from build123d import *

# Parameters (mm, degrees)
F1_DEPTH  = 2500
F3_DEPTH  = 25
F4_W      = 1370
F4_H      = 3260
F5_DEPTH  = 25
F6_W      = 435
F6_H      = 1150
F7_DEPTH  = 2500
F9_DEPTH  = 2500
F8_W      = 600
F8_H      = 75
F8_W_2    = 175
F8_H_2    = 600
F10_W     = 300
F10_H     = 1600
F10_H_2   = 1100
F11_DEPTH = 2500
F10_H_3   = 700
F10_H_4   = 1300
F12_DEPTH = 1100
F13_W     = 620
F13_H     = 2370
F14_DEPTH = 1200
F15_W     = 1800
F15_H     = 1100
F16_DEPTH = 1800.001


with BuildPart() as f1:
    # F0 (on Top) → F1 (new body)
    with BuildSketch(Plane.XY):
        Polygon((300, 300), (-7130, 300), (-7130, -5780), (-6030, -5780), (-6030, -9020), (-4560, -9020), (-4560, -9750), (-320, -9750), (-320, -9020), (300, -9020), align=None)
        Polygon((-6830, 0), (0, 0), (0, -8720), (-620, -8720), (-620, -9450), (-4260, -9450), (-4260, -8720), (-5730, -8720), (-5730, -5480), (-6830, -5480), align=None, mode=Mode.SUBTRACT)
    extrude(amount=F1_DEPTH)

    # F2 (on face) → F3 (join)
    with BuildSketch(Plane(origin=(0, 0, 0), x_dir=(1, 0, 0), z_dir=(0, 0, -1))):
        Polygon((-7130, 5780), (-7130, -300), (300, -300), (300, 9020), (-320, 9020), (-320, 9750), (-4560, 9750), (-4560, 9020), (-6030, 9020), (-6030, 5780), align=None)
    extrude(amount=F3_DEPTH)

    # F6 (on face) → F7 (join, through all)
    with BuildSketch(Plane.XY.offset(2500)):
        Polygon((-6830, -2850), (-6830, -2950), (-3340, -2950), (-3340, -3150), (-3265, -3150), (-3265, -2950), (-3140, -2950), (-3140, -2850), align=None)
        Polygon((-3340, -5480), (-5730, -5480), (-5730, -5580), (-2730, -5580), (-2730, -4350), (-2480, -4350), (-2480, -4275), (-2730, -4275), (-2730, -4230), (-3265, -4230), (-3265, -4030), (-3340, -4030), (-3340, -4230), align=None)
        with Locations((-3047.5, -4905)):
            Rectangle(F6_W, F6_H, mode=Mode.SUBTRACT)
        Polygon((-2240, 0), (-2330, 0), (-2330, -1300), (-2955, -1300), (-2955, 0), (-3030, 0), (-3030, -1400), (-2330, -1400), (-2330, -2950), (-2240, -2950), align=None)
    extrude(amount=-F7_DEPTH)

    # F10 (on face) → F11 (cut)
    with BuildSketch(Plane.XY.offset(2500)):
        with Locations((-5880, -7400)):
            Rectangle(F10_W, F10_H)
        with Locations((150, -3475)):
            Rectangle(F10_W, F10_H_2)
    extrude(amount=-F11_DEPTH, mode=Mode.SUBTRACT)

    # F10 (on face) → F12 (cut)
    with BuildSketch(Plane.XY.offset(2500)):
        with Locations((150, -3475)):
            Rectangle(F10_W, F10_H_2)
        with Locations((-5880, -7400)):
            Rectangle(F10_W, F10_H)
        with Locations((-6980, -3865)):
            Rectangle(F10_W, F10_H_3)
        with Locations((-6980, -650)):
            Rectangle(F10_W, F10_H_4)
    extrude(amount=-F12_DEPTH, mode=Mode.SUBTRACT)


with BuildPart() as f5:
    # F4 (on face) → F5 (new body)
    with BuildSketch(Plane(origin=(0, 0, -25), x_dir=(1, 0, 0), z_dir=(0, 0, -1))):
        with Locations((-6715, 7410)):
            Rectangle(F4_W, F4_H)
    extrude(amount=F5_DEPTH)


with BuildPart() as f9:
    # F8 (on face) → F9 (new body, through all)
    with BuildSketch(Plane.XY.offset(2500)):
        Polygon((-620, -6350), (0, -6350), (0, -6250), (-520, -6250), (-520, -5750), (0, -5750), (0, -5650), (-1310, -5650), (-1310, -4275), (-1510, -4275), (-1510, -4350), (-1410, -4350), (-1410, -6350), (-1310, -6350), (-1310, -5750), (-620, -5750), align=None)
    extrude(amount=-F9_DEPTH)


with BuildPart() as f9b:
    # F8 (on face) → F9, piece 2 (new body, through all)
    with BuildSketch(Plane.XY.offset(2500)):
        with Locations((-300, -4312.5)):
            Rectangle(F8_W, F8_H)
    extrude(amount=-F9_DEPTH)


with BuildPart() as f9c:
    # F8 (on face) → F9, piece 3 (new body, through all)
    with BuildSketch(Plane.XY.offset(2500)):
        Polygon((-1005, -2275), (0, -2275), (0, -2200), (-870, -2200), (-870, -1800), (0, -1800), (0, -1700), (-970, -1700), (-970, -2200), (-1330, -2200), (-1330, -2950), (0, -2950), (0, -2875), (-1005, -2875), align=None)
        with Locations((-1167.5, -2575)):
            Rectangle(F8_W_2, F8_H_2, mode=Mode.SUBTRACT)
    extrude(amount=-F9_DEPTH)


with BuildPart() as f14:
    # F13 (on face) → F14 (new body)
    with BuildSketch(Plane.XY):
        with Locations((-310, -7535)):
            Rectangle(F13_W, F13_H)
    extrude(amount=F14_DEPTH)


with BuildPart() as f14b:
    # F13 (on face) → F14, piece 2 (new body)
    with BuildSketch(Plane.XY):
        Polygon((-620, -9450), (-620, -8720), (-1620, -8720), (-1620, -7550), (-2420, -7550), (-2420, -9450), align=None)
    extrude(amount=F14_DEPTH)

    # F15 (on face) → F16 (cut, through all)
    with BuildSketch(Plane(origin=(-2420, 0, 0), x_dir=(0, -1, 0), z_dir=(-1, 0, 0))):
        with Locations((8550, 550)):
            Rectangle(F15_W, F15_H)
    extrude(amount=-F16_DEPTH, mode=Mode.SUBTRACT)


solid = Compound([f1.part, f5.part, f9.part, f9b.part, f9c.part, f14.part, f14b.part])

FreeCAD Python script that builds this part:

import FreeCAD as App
import Part
import Sketcher
from FreeCAD import Vector


def add_polygon(sketch, points):
    """Adds a closed chain of lines whose ends are joined by coincident constraints."""
    first, n = sketch.GeometryCount, len(points)
    for a, b in zip(points, points[1:] + points[:1]):
        sketch.addGeometry(Part.LineSegment(App.Vector(*a, 0), App.Vector(*b, 0)), False)
    for i in range(n):
        sketch.addConstraint(Sketcher.Constraint("Coincident", first + i, 2, first + (i + 1) % n, 1))

doc = App.newDocument("Part")
body = doc.addObject("PartDesign::Body", "Body")

# Sketch on XY plane
sketch1 = body.newObject("Sketcher::SketchObject", "Sketch")
sketch1.AttachmentSupport = (doc.getObject("XY_Plane"), [""])
sketch1.MapMode = "FlatFace"
add_polygon(sketch1, [(300, 300), (-7130, 300), (-7130, -5780), (-6030, -5780), (-6030, -9020), (-4560, -9020), (-4560, -9750), (-320, -9750), (-320, -9020), (300, -9020)])  # lines 0-9
add_polygon(sketch1, [(-6830, -5480), (-6830, 0), (0, 0), (0, -8720), (-620, -8720), (-620, -9450), (-4260, -9450), (-4260, -8720), (-5730, -8720), (-5730, -5480)])  # lines 10-19
sketch1.addConstraint([
    Sketcher.Constraint("Horizontal", 0),
    Sketcher.Constraint("Vertical", 1),
    Sketcher.Constraint("Horizontal", 2),
    Sketcher.Constraint("Vertical", 3),
    Sketcher.Constraint("Horizontal", 4),
    Sketcher.Constraint("Vertical", 5),
    Sketcher.Constraint("Horizontal", 6),
    Sketcher.Constraint("Vertical", 7),
    Sketcher.Constraint("Horizontal", 8),
    Sketcher.Constraint("Vertical", 9),
    Sketcher.Constraint("Vertical", 10),
    Sketcher.Constraint("Horizontal", 11),
    Sketcher.Constraint("Vertical", 12),
    Sketcher.Constraint("Horizontal", 13),
    Sketcher.Constraint("Vertical", 14),
    Sketcher.Constraint("Horizontal", 15),
    Sketcher.Constraint("Vertical", 16),
    Sketcher.Constraint("Horizontal", 17),
    Sketcher.Constraint("Vertical", 18),
    Sketcher.Constraint("Horizontal", 19),
    Sketcher.Constraint("Coincident", 11, 2, -1, 1),
    Sketcher.Constraint("Horizontal", 4, 2, 7, 2),
    Sketcher.Constraint("Horizontal", 13, 2, 16, 2),
    Sketcher.Constraint("Equal", 8, 13),
    Sketcher.Constraint("Equal", 4, 17),
    Sketcher.Constraint("Equal", 2, 19),
    Sketcher.Constraint("Equal", 7, 14),
    Sketcher.Constraint("Equal", 3, 18),
    Sketcher.Constraint("DistanceX", 0, 2, 0, 1, 7430.0),
    Sketcher.Constraint("DistanceX", 2, 1, 2, 2, 1100.0),
    Sketcher.Constraint("DistanceX", 4, 1, 4, 2, 1470.0),
    Sketcher.Constraint("DistanceX", 6, 1, 6, 2, 4240.0),
    Sketcher.Constraint("DistanceX", 11, 1, 11, 2, 6830.0),
    Sketcher.Constraint("DistanceY", 1, 2, 1, 1, 6080.0),
    Sketcher.Constraint("DistanceY", 3, 2, 3, 1, 3240.0),
    Sketcher.Constraint("DistanceY", 5, 2, 5, 1, 730.0),
    Sketcher.Constraint("DistanceY", 10, 1, 10, 2, 5480.0),
    Sketcher.Constraint("DistanceX", 0, 2, -1, 1, 7130.0),
    Sketcher.Constraint("DistanceY", -1, 1, 0, 2, 300.0),
])
pad1 = body.newObject("PartDesign::Pad", "Pad")
pad1.Profile = sketch1
pad1.Length = 2500

# Sketch on XY plane
sketch2 = body.newObject("Sketcher::SketchObject", "Sketch001")
sketch2.AttachmentSupport = (doc.getObject("XY_Plane"), [""])
sketch2.MapMode = "FlatFace"
add_polygon(sketch2, [(-7130, -5780), (-7130, 300), (300, 300), (300, -9020), (-320, -9020), (-320, -9750), (-4560, -9750), (-4560, -9020), (-6030, -9020), (-6030, -5780)])  # lines 0-9
sketch2.addConstraint([
    Sketcher.Constraint("Vertical", 0),
    Sketcher.Constraint("Horizontal", 1),
    Sketcher.Constraint("Vertical", 2),
    Sketcher.Constraint("Horizontal", 3),
    Sketcher.Constraint("Vertical", 4),
    Sketcher.Constraint("Horizontal", 5),
    Sketcher.Constraint("Vertical", 6),
    Sketcher.Constraint("Horizontal", 7),
    Sketcher.Constraint("Vertical", 8),
    Sketcher.Constraint("Horizontal", 9),
    Sketcher.Constraint("Horizontal", 3, 2, 6, 2),
    Sketcher.Constraint("DistanceX", 1, 1, 1, 2, 7430.0),
    Sketcher.Constraint("DistanceX", 3, 2, 3, 1, 620.0),
    Sketcher.Constraint("DistanceX", 5, 2, 5, 1, 4240.0),
    Sketcher.Constraint("DistanceX", 7, 2, 7, 1, 1470.0),
    Sketcher.Constraint("DistanceY", 0, 1, 0, 2, 6080.0),
    Sketcher.Constraint("DistanceY", 2, 2, 2, 1, 9320.0),
    Sketcher.Constraint("DistanceY", 4, 2, 4, 1, 730.0),
    Sketcher.Constraint("DistanceX", 0, 2, -1, 1, 7130.0),
    Sketcher.Constraint("DistanceY", -1, 1, 0, 2, 300.0),
])
pad2 = body.newObject("PartDesign::Pad", "Pad001")
pad2.Profile = sketch2
pad2.Length = 25
pad2.Reversed = True

# Sketch on XY plane
sketch3 = body.newObject("Sketcher::SketchObject", "Sketch002")
sketch3.AttachmentSupport = (doc.getObject("XY_Plane"), [""])
sketch3.MapMode = "FlatFace"
sketch3.AttachmentOffset = App.Placement(Vector(0, 0, 2500), App.Rotation())
add_polygon(sketch3, [(-6830, -2850), (-6830, -2950), (-3340, -2950), (-3340, -3150), (-3265, -3150), (-3265, -2950), (-3140, -2950), (-3140, -2850)])  # lines 0-7
add_polygon(sketch3, [(-3340, -5480), (-5730, -5480), (-5730, -5580), (-2730, -5580), (-2730, -4350), (-2480, -4350), (-2480, -4275), (-2730, -4275), (-2730, -4230), (-3265, -4230), (-3265, -4030), (-3340, -4030)])  # lines 8-19
add_polygon(sketch3, [(-2830, -5480), (-3265, -5480), (-3265, -4330), (-2830, -4330)])  # lines 20-23
add_polygon(sketch3, [(-2240, 0), (-2330, 0), (-2330, -1300), (-2955, -1300), (-2955, 0), (-3030, 0), (-3030, -1400), (-2330, -1400), (-2330, -2950), (-2240, -2950)])  # lines 24-33
sketch3.addConstraint([
    Sketcher.Constraint("Vertical", 0),
    Sketcher.Constraint("Horizontal", 1),
    Sketcher.Constraint("Vertical", 2),
    Sketcher.Constraint("Horizontal", 3),
    Sketcher.Constraint("Vertical", 4),
    Sketcher.Constraint("Horizontal", 5),
    Sketcher.Constraint("Vertical", 6),
    Sketcher.Constraint("Horizontal", 7),
    Sketcher.Constraint("Horizontal", 8),
    Sketcher.Constraint("Vertical", 9),
    Sketcher.Constraint("Horizontal", 10),
    Sketcher.Constraint("Vertical", 11),
    Sketcher.Constraint("Horizontal", 12),
    Sketcher.Constraint("Vertical", 13),
    Sketcher.Constraint("Horizontal", 14),
    Sketcher.Constraint("Vertical", 15),
    Sketcher.Constraint("Horizontal", 16),
    Sketcher.Constraint("Vertical", 17),
    Sketcher.Constraint("Horizontal", 18),
    Sketcher.Constraint("Vertical", 19),
    Sketcher.Constraint("Horizontal", 20),
    Sketcher.Constraint("Vertical", 21),
    Sketcher.Constraint("Horizontal", 22),
    Sketcher.Constraint("Vertical", 23),
    Sketcher.Constraint("Horizontal", 24),
    Sketcher.Constraint("Vertical", 25),
    Sketcher.Constraint("Horizontal", 26),
    Sketcher.Constraint("Vertical", 27),
    Sketcher.Constraint("Horizontal", 28),
    Sketcher.Constraint("Vertical", 29),
    Sketcher.Constraint("Horizontal", 30),
    Sketcher.Constraint("Vertical", 31),
    Sketcher.Constraint("Horizontal", 32),
    Sketcher.Constraint("Vertical", 33),
    Sketcher.Constraint("PointOnObject", 24, 2, -1),
    Sketcher.Constraint("PointOnObject", 27, 2, -1),
    Sketcher.Constraint("Horizontal", 1, 2, 4, 2),
    Sketcher.Constraint("Horizontal", 19, 2, 20, 2),
    Sketcher.Constraint("Horizontal", 5, 2, 31, 2),
    Sketcher.Constraint("Vertical", 11, 2, 14, 2),
    Sketcher.Constraint("Vertical", 4, 2, 16, 2),
    Sketcher.Constraint("Vertical", 2, 2, 18, 2),
    Sketcher.Constraint("Vertical", 17, 2, 20, 2),
    Sketcher.Constraint("Vertical", 25, 2, 30, 2),
    Sketcher.Constraint("Equal", 18, 28),
    Sketcher.Constraint("Equal", 6, 9),
    Sketcher.Constraint("Equal", 28, 13),
    Sketcher.Constraint("Equal", 4, 17),
    Sketcher.Constraint("DistanceX", 1, 1, 1, 2, 3490.0),
    Sketcher.Constraint("DistanceX", 3, 1, 3, 2, 75.0),
    Sketcher.Constraint("DistanceX", 5, 1, 5, 2, 125.0),
    Sketcher.Constraint("DistanceX", 8, 2, 8, 1, 2390.0),
    Sketcher.Constraint("DistanceX", 10, 1, 10, 2, 3000.0),
    Sketcher.Constraint("DistanceX", 12, 1, 12, 2, 250.0),
    Sketcher.Constraint("DistanceX", 20, 2, 20, 1, 435.0),
    Sketcher.Constraint("DistanceX", 24, 2, 24, 1, 90.0),
    Sketcher.Constraint("DistanceX", 26, 2, 26, 1, 625.0),
    Sketcher.Constraint("DistanceY", 0, 2, 0, 1, 100.0),
    Sketcher.Constraint("DistanceY", 2, 2, 2, 1, 200.0),
    Sketcher.Constraint("DistanceY", 11, 1, 11, 2, 1230.0),
    Sketcher.Constraint("DistanceY", 15, 1, 15, 2, 45.0),
    Sketcher.Constraint("DistanceY", 21, 1, 21, 2, 1150.0),
    Sketcher.Constraint("DistanceY", 25, 2, 25, 1, 1300.0),
    Sketcher.Constraint("DistanceY", 29, 2, 29, 1, 1400.0),
    Sketcher.Constraint("DistanceY", 31, 2, 31, 1, 1550.0),
    Sketcher.Constraint("DistanceX", 0, 2, -1, 1, 6830.0),
    Sketcher.Constraint("DistanceY", 8, 2, -1, 1, 5480.0),
    Sketcher.Constraint("DistanceX", 24, 2, -1, 1, 2330.0),
])
pad3 = body.newObject("PartDesign::Pad", "Pad002")
pad3.Profile = sketch3
pad3.Type = "UpToLast"
pad3.Reversed = True

# Sketch on XY plane
sketch4 = body.newObject("Sketcher::SketchObject", "Sketch003")
sketch4.AttachmentSupport = (doc.getObject("XY_Plane"), [""])
sketch4.MapMode = "FlatFace"
sketch4.AttachmentOffset = App.Placement(Vector(0, 0, 2500), App.Rotation())
add_polygon(sketch4, [(-6030, -6600), (-6030, -8200), (-5730, -8200), (-5730, -6600)])  # lines 0-3
add_polygon(sketch4, [(0, -2925), (0, -4025), (300, -4025), (300, -2925)])  # lines 4-7
sketch4.addConstraint([
    Sketcher.Constraint("Vertical", 0),
    Sketcher.Constraint("Horizontal", 1),
    Sketcher.Constraint("Vertical", 2),
    Sketcher.Constraint("Horizontal", 3),
    Sketcher.Constraint("Vertical", 4),
    Sketcher.Constraint("Horizontal", 5),
    Sketcher.Constraint("Vertical", 6),
    Sketcher.Constraint("Horizontal", 7),
    Sketcher.Constraint("PointOnObject", 4, 2, -2),
    Sketcher.Constraint("Equal", 3, 5),
    Sketcher.Constraint("DistanceX", 1, 1, 1, 2, 300.0),
    Sketcher.Constraint("DistanceY", 0, 2, 0, 1, 1600.0),
    Sketcher.Constraint("DistanceY", 4, 2, 4, 1, 1100.0),
    Sketcher.Constraint("DistanceX", 0, 2, -1, 1, 6030.0),
    Sketcher.Constraint("DistanceY", 0, 2, -1, 1, 8200.0),
    Sketcher.Constraint("DistanceY", 4, 2, -1, 1, 4025.0),
])
pocket1 = body.newObject("PartDesign::Pocket", "Pocket")
pocket1.Profile = sketch4
pocket1.Length = 2500

# Sketch on XY plane
sketch5 = body.newObject("Sketcher::SketchObject", "Sketch004")
sketch5.AttachmentSupport = (doc.getObject("XY_Plane"), [""])
sketch5.MapMode = "FlatFace"
sketch5.AttachmentOffset = App.Placement(Vector(0, 0, 2500), App.Rotation())
add_polygon(sketch5, [(0, -2925), (0, -4025), (300, -4025), (300, -2925)])  # lines 0-3
add_polygon(sketch5, [(-6030, -6600), (-6030, -8200), (-5730, -8200), (-5730, -6600)])  # lines 4-7
add_polygon(sketch5, [(-7130, -3515), (-7130, -4215), (-6830, -4215), (-6830, -3515)])  # lines 8-11
add_polygon(sketch5, [(-7130, 0), (-7130, -1300), (-6830, -1300), (-6830, 0)])  # lines 12-15
sketch5.addConstraint([
    Sketcher.Constraint("Vertical", 0),
    Sketcher.Constraint("Horizontal", 1),
    Sketcher.Constraint("Vertical", 2),
    Sketcher.Constraint("Horizontal", 3),
    Sketcher.Constraint("Vertical", 4),
    Sketcher.Constraint("Horizontal", 5),
    Sketcher.Constraint("Vertical", 6),
    Sketcher.Constraint("Horizontal", 7),
    Sketcher.Constraint("Vertical", 8),
    Sketcher.Constraint("Horizontal", 9),
    Sketcher.Constraint("Vertical", 10),
    Sketcher.Constraint("Horizontal", 11),
    Sketcher.Constraint("Vertical", 12),
    Sketcher.Constraint("Horizontal", 13),
    Sketcher.Constraint("Vertical", 14),
    Sketcher.Constraint("Horizontal", 15),
    Sketcher.Constraint("PointOnObject", 0, 2, -2),
    Sketcher.Constraint("PointOnObject", 14, 2, -1),
    Sketcher.Constraint("Vertical", 11, 2, 12, 2),
    Sketcher.Constraint("Vertical", 10, 2, 13, 2),
    Sketcher.Constraint("Equal", 3, 5),
    Sketcher.Constraint("Equal", 7, 9),
    Sketcher.Constraint("DistanceX", 1, 1, 1, 2, 300.0),
    Sketcher.Constraint("DistanceY", 0, 2, 0, 1, 1100.0),
    Sketcher.Constraint("DistanceY", 4, 2, 4, 1, 1600.0),
    Sketcher.Constraint("DistanceY", 8, 2, 8, 1, 700.0),
    Sketcher.Constraint("DistanceY", 12, 2, 12, 1, 1300.0),
    Sketcher.Constraint("DistanceY", 0, 2, -1, 1, 4025.0),
    Sketcher.Constraint("DistanceX", 4, 2, -1, 1, 6030.0),
    Sketcher.Constraint("DistanceY", 4, 2, -1, 1, 8200.0),
    Sketcher.Constraint("DistanceX", 8, 2, -1, 1, 7130.0),
    Sketcher.Constraint("DistanceY", 8, 2, -1, 1, 4215.0),
])
pocket2 = body.newObject("PartDesign::Pocket", "Pocket001")
pocket2.Profile = sketch5
pocket2.Length = 1100
body2 = doc.addObject("PartDesign::Body", "Body001")

# Sketch on XY plane
sketch6 = body2.newObject("Sketcher::SketchObject", "Sketch005")
sketch6.AttachmentSupport = (doc.getObject("XY_Plane001"), [""])
sketch6.MapMode = "FlatFace"
sketch6.AttachmentOffset = App.Placement(Vector(0, 0, -25), App.Rotation())
add_polygon(sketch6, [(-7400, -9040), (-7400, -5780), (-6030, -5780), (-6030, -9040)])  # lines 0-3
sketch6.addConstraint([
    Sketcher.Constraint("Vertical", 0),
    Sketcher.Constraint("Horizontal", 1),
    Sketcher.Constraint("Vertical", 2),
    Sketcher.Constraint("Horizontal", 3),
    Sketcher.Constraint("DistanceX", 1, 1, 1, 2, 1370.0),
    Sketcher.Constraint("DistanceY", 0, 1, 0, 2, 3260.0),
    Sketcher.Constraint("DistanceX", 0, 2, -1, 1, 7400.0),
    Sketcher.Constraint("DistanceY", 0, 2, -1, 1, 5780.0),
])
pad4 = body2.newObject("PartDesign::Pad", "Pad003")
pad4.Profile = sketch6
pad4.Length = 25
pad4.Reversed = True
body3 = doc.addObject("PartDesign::Body", "Body002")

# Sketch on XY plane
sketch7 = body3.newObject("Sketcher::SketchObject", "Sketch006")
sketch7.AttachmentSupport = (doc.getObject("XY_Plane002"), [""])
sketch7.MapMode = "FlatFace"
sketch7.AttachmentOffset = App.Placement(Vector(0, 0, 2500), App.Rotation())
add_polygon(sketch7, [(-620, -6350), (0, -6350), (0, -6250), (-520, -6250), (-520, -5750), (0, -5750), (0, -5650), (-1310, -5650), (-1310, -4275), (-1510, -4275), (-1510, -4350), (-1410, -4350), (-1410, -6350), (-1310, -6350), (-1310, -5750), (-620, -5750)])  # lines 0-15
sketch7.addConstraint([
    Sketcher.Constraint("Horizontal", 0),
    Sketcher.Constraint("Vertical", 1),
    Sketcher.Constraint("Horizontal", 2),
    Sketcher.Constraint("Vertical", 3),
    Sketcher.Constraint("Horizontal", 4),
    Sketcher.Constraint("Vertical", 5),
    Sketcher.Constraint("Horizontal", 6),
    Sketcher.Constraint("Vertical", 7),
    Sketcher.Constraint("Horizontal", 8),
    Sketcher.Constraint("Vertical", 9),
    Sketcher.Constraint("Horizontal", 10),
    Sketcher.Constraint("Vertical", 11),
    Sketcher.Constraint("Horizontal", 12),
    Sketcher.Constraint("Vertical", 13),
    Sketcher.Constraint("Horizontal", 14),
    Sketcher.Constraint("Vertical", 15),
    Sketcher.Constraint("PointOnObject", 0, 2, -2),
    Sketcher.Constraint("PointOnObject", 4, 2, -2),
    Sketcher.Constraint("Horizontal", 0, 2, 11, 2),
    Sketcher.Constraint("Horizontal", 4, 2, 13, 2),
    Sketcher.Constraint("Vertical", 7, 2, 12, 2),
    Sketcher.Constraint("Equal", 10, 12),
    Sketcher.Constraint("Equal", 12, 1),
    Sketcher.Constraint("Equal", 1, 5),
    Sketcher.Constraint("DistanceX", 0, 1, 0, 2, 620.0),
    Sketcher.Constraint("DistanceX", 2, 2, 2, 1, 520.0),
    Sketcher.Constraint("DistanceX", 6, 2, 6, 1, 1310.0),
    Sketcher.Constraint("DistanceX", 8, 2, 8, 1, 200.0),
    Sketcher.Constraint("DistanceY", 3, 1, 3, 2, 500.0),
    Sketcher.Constraint("DistanceY", 7, 1, 7, 2, 1375.0),
    Sketcher.Constraint("DistanceY", 9, 2, 9, 1, 75.0),
    Sketcher.Constraint("DistanceY", 0, 2, -1, 1, 6350.0),
])
pad5 = body3.newObject("PartDesign::Pad", "Pad004")
pad5.Profile = sketch7
pad5.Length = 2500
pad5.Reversed = True
body4 = doc.addObject("PartDesign::Body", "Body003")

# Sketch on XY plane
sketch8 = body4.newObject("Sketcher::SketchObject", "Sketch007")
sketch8.AttachmentSupport = (doc.getObject("XY_Plane003"), [""])
sketch8.MapMode = "FlatFace"
sketch8.AttachmentOffset = App.Placement(Vector(0, 0, 2500), App.Rotation())
add_polygon(sketch8, [(-600, -4275), (-600, -4350), (0, -4350), (0, -4275)])  # lines 0-3
sketch8.addConstraint([
    Sketcher.Constraint("Vertical", 0),
    Sketcher.Constraint("Horizontal", 1),
    Sketcher.Constraint("Vertical", 2),
    Sketcher.Constraint("Horizontal", 3),
    Sketcher.Constraint("PointOnObject", 1, 2, -2),
    Sketcher.Constraint("DistanceX", 1, 1, 1, 2, 600.0),
    Sketcher.Constraint("DistanceY", 0, 2, 0, 1, 75.0),
    Sketcher.Constraint("DistanceY", 0, 2, -1, 1, 4350.0),
])
pad6 = body4.newObject("PartDesign::Pad", "Pad005")
pad6.Profile = sketch8
pad6.Length = 2500
pad6.Reversed = True
body5 = doc.addObject("PartDesign::Body", "Body004")

# Sketch on XY plane
sketch9 = body5.newObject("Sketcher::SketchObject", "Sketch008")
sketch9.AttachmentSupport = (doc.getObject("XY_Plane004"), [""])
sketch9.MapMode = "FlatFace"
sketch9.AttachmentOffset = App.Placement(Vector(0, 0, 2500), App.Rotation())
add_polygon(sketch9, [(-1005, -2275), (0, -2275), (0, -2200), (-870, -2200), (-870, -1800), (0, -1800), (0, -1700), (-970, -1700), (-970, -2200), (-1330, -2200), (-1330, -2950), (0, -2950), (0, -2875), (-1005, -2875)])  # lines 0-13
add_polygon(sketch9, [(-1080, -2875), (-1255, -2875), (-1255, -2275), (-1080, -2275)])  # lines 14-17
sketch9.addConstraint([
    Sketcher.Constraint("Horizontal", 0),
    Sketcher.Constraint("Vertical", 1),
    Sketcher.Constraint("Horizontal", 2),
    Sketcher.Constraint("Vertical", 3),
    Sketcher.Constraint("Horizontal", 4),
    Sketcher.Constraint("Vertical", 5),
    Sketcher.Constraint("Horizontal", 6),
    Sketcher.Constraint("Vertical", 7),
    Sketcher.Constraint("Horizontal", 8),
    Sketcher.Constraint("Vertical", 9),
    Sketcher.Constraint("Horizontal", 10),
    Sketcher.Constraint("Vertical", 11),
    Sketcher.Constraint("Horizontal", 12),
    Sketcher.Constraint("Vertical", 13),
    Sketcher.Constraint("Horizontal", 14),
    Sketcher.Constraint("Vertical", 15),
    Sketcher.Constraint("Horizontal", 16),
    Sketcher.Constraint("Vertical", 17),
    Sketcher.Constraint("PointOnObject", 0, 2, -2),
    Sketcher.Constraint("PointOnObject", 4, 2, -2),
    Sketcher.Constraint("PointOnObject", 10, 2, -2),
    Sketcher.Constraint("Horizontal", 2, 2, 7, 2),
    Sketcher.Constraint("Horizontal", 12, 2, 14, 2),
    Sketcher.Constraint("Horizontal", 13, 2, 15, 2),
    Sketcher.Constraint("Equal", 1, 11),
    Sketcher.Constraint("DistanceX", 0, 1, 0, 2, 1005.0),
    Sketcher.Constraint("DistanceX", 2, 2, 2, 1, 870.0),
    Sketcher.Constraint("DistanceX", 6, 2, 6, 1, 970.0),
    Sketcher.Constraint("DistanceX", 8, 2, 8, 1, 360.0),
    Sketcher.Constraint("DistanceX", 14, 2, 14, 1, 175.0),
    Sketcher.Constraint("DistanceY", 1, 1, 1, 2, 75.0),
    Sketcher.Constraint("DistanceY", 3, 1, 3, 2, 400.0),
    Sketcher.Constraint("DistanceY", 5, 1, 5, 2, 100.0),
    Sketcher.Constraint("DistanceY", 9, 2, 9, 1, 750.0),
    Sketcher.Constraint("DistanceY", 0, 2, -1, 1, 2275.0),
    Sketcher.Constraint("DistanceX", 14, 2, -1, 1, 1255.0),
])
pad7 = body5.newObject("PartDesign::Pad", "Pad006")
pad7.Profile = sketch9
pad7.Length = 2500
pad7.Reversed = True
body6 = doc.addObject("PartDesign::Body", "Body005")

# Sketch on XY plane
sketch10 = body6.newObject("Sketcher::SketchObject", "Sketch009")
sketch10.AttachmentSupport = (doc.getObject("XY_Plane005"), [""])
sketch10.MapMode = "FlatFace"
add_polygon(sketch10, [(-620, -6350), (-620, -8720), (0, -8720), (0, -6350)])  # lines 0-3
sketch10.addConstraint([
    Sketcher.Constraint("Vertical", 0),
    Sketcher.Constraint("Horizontal", 1),
    Sketcher.Constraint("Vertical", 2),
    Sketcher.Constraint("Horizontal", 3),
    Sketcher.Constraint("PointOnObject", 1, 2, -2),
    Sketcher.Constraint("DistanceX", 1, 1, 1, 2, 620.0),
    Sketcher.Constraint("DistanceY", 0, 2, 0, 1, 2370.0),
    Sketcher.Constraint("DistanceY", 0, 2, -1, 1, 8720.0),
])
pad8 = body6.newObject("PartDesign::Pad", "Pad007")
pad8.Profile = sketch10
pad8.Length = 1200
body7 = doc.addObject("PartDesign::Body", "Body006")

# Sketch on XY plane
sketch11 = body7.newObject("Sketcher::SketchObject", "Sketch010")
sketch11.AttachmentSupport = (doc.getObject("XY_Plane006"), [""])
sketch11.MapMode = "FlatFace"
add_polygon(sketch11, [(-620, -9450), (-620, -8720), (-1620, -8720), (-1620, -7550), (-2420, -7550), (-2420, -9450)])  # lines 0-5
sketch11.addConstraint([
    Sketcher.Constraint("Vertical", 0),
    Sketcher.Constraint("Horizontal", 1),
    Sketcher.Constraint("Vertical", 2),
    Sketcher.Constraint("Horizontal", 3),
    Sketcher.Constraint("Vertical", 4),
    Sketcher.Constraint("Horizontal", 5),
    Sketcher.Constraint("DistanceX", 1, 2, 1, 1, 1000.0),
    Sketcher.Constraint("DistanceX", 3, 2, 3, 1, 800.0),
    Sketcher.Constraint("DistanceY", 0, 1, 0, 2, 730.0),
    Sketcher.Constraint("DistanceY", 2, 1, 2, 2, 1170.0),
    Sketcher.Constraint("DistanceX", 0, 2, -1, 1, 620.0),
    Sketcher.Constraint("DistanceY", 0, 2, -1, 1, 8720.0),
])
pad9 = body7.newObject("PartDesign::Pad", "Pad008")
pad9.Profile = sketch11
pad9.Length = 1200

# Sketch on YZ plane
sketch12 = body7.newObject("Sketcher::SketchObject", "Sketch011")
sketch12.AttachmentSupport = (doc.getObject("YZ_Plane006"), [""])
sketch12.MapMode = "FlatFace"
sketch12.AttachmentOffset = App.Placement(Vector(0, 0, -2420), App.Rotation())
add_polygon(sketch12, [(-7650, 1100), (-7650, 0), (-9450, 0), (-9450, 1100)])  # lines 0-3
sketch12.addConstraint([
    Sketcher.Constraint("Vertical", 0),
    Sketcher.Constraint("Horizontal", 1),
    Sketcher.Constraint("Vertical", 2),
    Sketcher.Constraint("Horizontal", 3),
    Sketcher.Constraint("PointOnObject", 0, 2, -1),
    Sketcher.Constraint("DistanceX", 1, 2, 1, 1, 1800.0),
    Sketcher.Constraint("DistanceY", 0, 2, 0, 1, 1100.0),
    Sketcher.Constraint("DistanceX", 0, 2, -1, 1, 7650.0),
])
pocket3 = body7.newObject("PartDesign::Pocket", "Pocket002")
pocket3.Profile = sketch12
pocket3.Type = "ThroughAll"
pocket3.Reversed = True

doc.recompute()
